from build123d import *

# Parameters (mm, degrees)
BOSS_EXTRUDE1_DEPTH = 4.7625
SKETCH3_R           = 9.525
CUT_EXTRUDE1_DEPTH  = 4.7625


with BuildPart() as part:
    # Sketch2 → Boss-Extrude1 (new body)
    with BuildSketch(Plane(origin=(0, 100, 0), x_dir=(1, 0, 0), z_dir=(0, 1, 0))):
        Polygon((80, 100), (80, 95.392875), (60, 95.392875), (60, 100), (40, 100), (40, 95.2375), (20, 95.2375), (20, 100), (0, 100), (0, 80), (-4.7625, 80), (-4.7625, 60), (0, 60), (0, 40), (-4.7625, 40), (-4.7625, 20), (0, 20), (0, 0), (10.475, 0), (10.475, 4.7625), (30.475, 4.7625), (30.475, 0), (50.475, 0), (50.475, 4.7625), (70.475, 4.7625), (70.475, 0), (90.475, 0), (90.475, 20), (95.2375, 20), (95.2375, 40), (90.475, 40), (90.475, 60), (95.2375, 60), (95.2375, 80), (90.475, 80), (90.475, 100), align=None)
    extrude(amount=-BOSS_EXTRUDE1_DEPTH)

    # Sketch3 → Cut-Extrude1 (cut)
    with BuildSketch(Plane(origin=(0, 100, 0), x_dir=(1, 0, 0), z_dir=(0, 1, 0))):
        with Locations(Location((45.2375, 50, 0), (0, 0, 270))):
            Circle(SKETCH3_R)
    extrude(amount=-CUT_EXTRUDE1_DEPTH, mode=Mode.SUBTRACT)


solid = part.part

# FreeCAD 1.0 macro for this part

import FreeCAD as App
import Part
import Sketcher
from FreeCAD import Vector
Q = App.Units.Quantity

doc = App.newDocument("Part")
body = doc.addObject("PartDesign::Body", "Body")

# Sketch on XZ plane
sketch1 = body.newObject("Sketcher::SketchObject", "Sketch")
sketch1.AttachmentSupport = (doc.getObject("XZ_Plane"), [""])
sketch1.MapMode = "FlatFace"
sketch1.AttachmentOffset = App.Placement(Vector(0, 0, -100), App.Rotation())
sketch1.addGeometry(Part.LineSegment(Vector(80, -100, 0), Vector(80, -95.4, 0)), False)
sketch1.addGeometry(Part.LineSegment(Vector(80, -95.4, 0), Vector(60, -95.4, 0)), False)
sketch1.addGeometry(Part.LineSegment(Vector(60, -95.4, 0), Vector(60, -100, 0)), False)
sketch1.addGeometry(Part.LineSegment(Vector(60, -100, 0), Vector(40, -100, 0)), False)
sketch1.addGeometry(Part.LineSegment(Vector(40, -100, 0), Vector(40, -95.2, 0)), False)
sketch1.addGeometry(Part.LineSegment(Vector(40, -95.2, 0), Vector(20, -95.2, 0)), False)
sketch1.addGeometry(Part.LineSegment(Vector(20, -95.2, 0), Vector(20, -100, 0)), False)
sketch1.addGeometry(Part.LineSegment(Vector(20, -100, 0), Vector(0, -100, 0)), False)
sketch1.addGeometry(Part.LineSegment(Vector(0, -100, 0), Vector(0, -80, 0)), False)
sketch1.addGeometry(Part.LineSegment(Vector(0, -80, 0), Vector(-4.8, -80, 0)), False)
sketch1.addGeometry(Part.LineSegment(Vector(-4.8, -80, 0), Vector(-4.8, -60, 0)), False)
sketch1.addGeometry(Part.LineSegment(Vector(-4.8, -60, 0), Vector(0, -60, 0)), False)
sketch1.addGeometry(Part.LineSegment(Vector(0, -60, 0), Vector(0, -40, 0)), False)
sketch1.addGeometry(Part.LineSegment(Vector(0, -40, 0), Vector(-4.8, -40, 0)), False)
sketch1.addGeometry(Part.LineSegment(Vector(-4.8, -40, 0), Vector(-4.8, -20, 0)), False)
sketch1.addGeometry(Part.LineSegment(Vector(-4.8, -20, 0), Vector(0, -20, 0)), False)
sketch1.addGeometry(Part.LineSegment(Vector(0, -20, 0), Vector(0, 0, 0)), False)
sketch1.addGeometry(Part.LineSegment(Vector(0, 0, 0), Vector(10.5, 0, 0)), False)
sketch1.addGeometry(Part.LineSegment(Vector(10.5, 0, 0), Vector(10.5, -4.8, 0)), False)
sketch1.addGeometry(Part.LineSegment(Vector(10.5, -4.8, 0), Vector(30.5, -4.8, 0)), False)
sketch1.addGeometry(Part.LineSegment(Vector(30.5, -4.8, 0), Vector(30.5, 0, 0)), False)
sketch1.addGeometry(Part.LineSegment(Vector(30.5, 0, 0), Vector(50.5, 0, 0)), False)
sketch1.addGeometry(Part.LineSegment(Vector(50.5, 0, 0), Vector(50.5, -4.8, 0)), False)
sketch1.addGeometry(Part.LineSegment(Vector(50.5, -4.8, 0), Vector(70.5, -4.8, 0)), False)
sketch1.addGeometry(Part.LineSegment(Vector(70.5, -4.8, 0), Vector(70.5, 0, 0)), False)
sketch1.addGeometry(Part.LineSegment(Vector(70.5, 0, 0), Vector(90.5, 0, 0)), False)
sketch1.addGeometry(Part.LineSegment(Vector(90.5, 0, 0), Vector(90.5, -20, 0)), False)
sketch1.addGeometry(Part.LineSegment(Vector(90.5, -20, 0), Vector(95.2, -20, 0)), False)
sketch1.addGeometry(Part.LineSegment(Vector(95.2, -20, 0), Vector(95.2, -40, 0)), False)
sketch1.addGeometry(Part.LineSegment(Vector(95.2, -40, 0), Vector(90.5, -40, 0)), False)
sketch1.addGeometry(Part.LineSegment(Vector(90.5, -40, 0), Vector(90.5, -60, 0)), False)
sketch1.addGeometry(Part.LineSegment(Vector(90.5, -60, 0), Vector(95.2, -60, 0)), False)
sketch1.addGeometry(Part.LineSegment(Vector(95.2, -60, 0), Vector(95.2, -80, 0)), False)
sketch1.addGeometry(Part.LineSegment(Vector(95.2, -80, 0), Vector(90.5, -80, 0)), False)
sketch1.addGeometry(Part.LineSegment(Vector(90.5, -80, 0), Vector(90.5, -100, 0)), False)
sketch1.addGeometry(Part.LineSegment(Vector(90.5, -100, 0), Vector(80, -100, 0)), False)
sketch1.addConstraint(Sketcher.Constraint("Coincident", 0, 2, 1, 1))
sketch1.addConstraint(Sketcher.Constraint("Coincident", 1, 2, 2, 1))
sketch1.addConstraint(Sketcher.Constraint("Coincident", 2, 2, 3, 1))
sketch1.addConstraint(Sketcher.Constraint("Coincident", 3, 2, 4, 1))
sketch1.addConstraint(Sketcher.Constraint("Coincident", 4, 2, 5, 1))
sketch1.addConstraint(Sketcher.Constraint("Coincident", 5, 2, 6, 1))
sketch1.addConstraint(Sketcher.Constraint("Coincident", 6, 2, 7, 1))
sketch1.addConstraint(Sketcher.Constraint("Coincident", 7, 2, 8, 1))
sketch1.addConstraint(Sketcher.Constraint("Coincident", 8, 2, 9, 1))
sketch1.addConstraint(Sketcher.Constraint("Coincident", 9, 2, 10, 1))
sketch1.addConstraint(Sketcher.Constraint("Coincident", 10, 2, 11, 1))
sketch1.addConstraint(Sketcher.Constraint("Coincident", 11, 2, 12, 1))
sketch1.addConstraint(Sketcher.Constraint("Coincident", 12, 2, 13, 1))
sketch1.addConstraint(Sketcher.Constraint("Coincident", 13, 2, 14, 1))
sketch1.addConstraint(Sketcher.Constraint("Coincident", 14, 2, 15, 1))
sketch1.addConstraint(Sketcher.Constraint("Coincident", 15, 2, 16, 1))
sketch1.addConstraint(Sketcher.Constraint("Coincident", 16, 2, 17, 1))
sketch1.addConstraint(Sketcher.Constraint("Coincident", 17, 2, 18, 1))
sketch1.addConstraint(Sketcher.Constraint("Coincident", 18, 2, 19, 1))
sketch1.addConstraint(Sketcher.Constraint("Coincident", 19, 2, 20, 1))
sketch1.addConstraint(Sketcher.Constraint("Coincident", 20, 2, 21, 1))
sketch1.addConstraint(Sketcher.Constraint("Coincident", 21, 2, 22, 1))
sketch1.addConstraint(Sketcher.Constraint("Coincident", 22, 2, 23, 1))
sketch1.addConstraint(Sketcher.Constraint("Coincident", 23, 2, 24, 1))
sketch1.addConstraint(Sketcher.Constraint("Coincident", 24, 2, 25, 1))
sketch1.addConstraint(Sketcher.Constraint("Coincident", 25, 2, 26, 1))
sketch1.addConstraint(Sketcher.Constraint("Coincident", 26, 2, 27, 1))
sketch1.addConstraint(Sketcher.Constraint("Coincident", 27, 2, 28, 1))
sketch1.addConstraint(Sketcher.Constraint("Coincident", 28, 2, 29, 1))
sketch1.addConstraint(Sketcher.Constraint("Coincident", 29, 2, 30, 1))
sketch1.addConstraint(Sketcher.Constraint("Coincident", 30, 2, 31, 1))
sketch1.addConstraint(Sketcher.Constraint("Coincident", 31, 2, 32, 1))
sketch1.addConstraint(Sketcher.Constraint("Coincident", 32, 2, 33, 1))
sketch1.addConstraint(Sketcher.Constraint("Coincident", 33, 2, 34, 1))
sketch1.addConstraint(Sketcher.Constraint("Coincident", 34, 2, 35, 1))
sketch1.addConstraint(Sketcher.Constraint("Coincident", 35, 2, 0, 1))
sketch1.addConstraint(Sketcher.Constraint("Vertical", 0))
sketch1.addConstraint(Sketcher.Constraint("Horizontal", 1))
sketch1.addConstraint(Sketcher.Constraint("Vertical", 2))
sketch1.addConstraint(Sketcher.Constraint("Horizontal", 3))
sketch1.addConstraint(Sketcher.Constraint("Vertical", 4))
sketch1.addConstraint(Sketcher.Constraint("Horizontal", 5))
sketch1.addConstraint(Sketcher.Constraint("Vertical", 6))
sketch1.addConstraint(Sketcher.Constraint("Horizontal", 7))
sketch1.addConstraint(Sketcher.Constraint("Vertical", 8))
sketch1.addConstraint(Sketcher.Constraint("Horizontal", 9))
sketch1.addConstraint(Sketcher.Constraint("Vertical", 10))
sketch1.addConstraint(Sketcher.Constraint("Horizontal", 11))
sketch1.addConstraint(Sketcher.Constraint("Vertical", 12))
sketch1.addConstraint(Sketcher.Constraint("Horizontal", 13))
sketch1.addConstraint(Sketcher.Constraint("Vertical", 14))
sketch1.addConstraint(Sketcher.Constraint("Horizontal", 15))
sketch1.addConstraint(Sketcher.Constraint("Vertical", 16))
sketch1.addConstraint(Sketcher.Constraint("Horizontal", 17))
sketch1.addConstraint(Sketcher.Constraint("Vertical", 18))
sketch1.addConstraint(Sketcher.Constraint("Horizontal", 19))
sketch1.addConstraint(Sketcher.Constraint("Vertical", 20))
sketch1.addConstraint(Sketcher.Constraint("Horizontal", 21))
sketch1.addConstraint(Sketcher.Constraint("Vertical", 22))
sketch1.addConstraint(Sketcher.Constraint("Horizontal", 23))
sketch1.addConstraint(Sketcher.Constraint("Vertical", 24))
sketch1.addConstraint(Sketcher.Constraint("Horizontal", 25))
sketch1.addConstraint(Sketcher.Constraint("Vertical", 26))
sketch1.addConstraint(Sketcher.Constraint("Horizontal", 27))
sketch1.addConstraint(Sketcher.Constraint("Vertical", 28))
sketch1.addConstraint(Sketcher.Constraint("Horizontal", 29))
sketch1.addConstraint(Sketcher.Constraint("Vertical", 30))
sketch1.addConstraint(Sketcher.Constraint("Horizontal", 31))
sketch1.addConstraint(Sketcher.Constraint("Vertical", 32))
sketch1.addConstraint(Sketcher.Constraint("Horizontal", 33))
sketch1.addConstraint(Sketcher.Constraint("Vertical", 34))
sketch1.addConstraint(Sketcher.Constraint("Horizontal", 35))
sketch1.addConstraint(Sketcher.Constraint("Coincident", 16, 2, -1, 1))
sketch1.addConstraint(Sketcher.Constraint("PointOnObject", 7, 2, -2))
sketch1.addConstraint(Sketcher.Constraint("PointOnObject", 11, 2, -2))
sketch1.addConstraint(Sketcher.Constraint("PointOnObject", 20, 2, -1))
sketch1.addConstraint(Sketcher.Constraint("PointOnObject", 24, 2, -1))
sketch1.addConstraint(Sketcher.Constraint("Horizontal", 3, 2, 6, 2))
sketch1.addConstraint(Sketcher.Constraint("Horizontal", 19, 2, 22, 2))
sketch1.addConstraint(Sketcher.Constraint("Horizontal", 15, 2, 26, 2))
sketch1.addConstraint(Sketcher.Constraint("Horizontal", 13, 2, 28, 2))
sketch1.addConstraint(Sketcher.Constraint("Horizontal", 11, 2, 30, 2))
sketch1.addConstraint(Sketcher.Constraint("Horizontal", 9, 2, 32, 2))
sketch1.addConstraint(Sketcher.Constraint("Horizontal", 7, 2, 34, 2))
sketch1.addConstraint(Sketcher.Constraint("Vertical", 10, 2, 13, 2))
sketch1.addConstraint(Sketcher.Constraint("Vertical", 26, 2, 29, 2))
sketch1.addConstraint(Sketcher.Constraint("Vertical", 28, 2, 31, 2))
sketch1.addConstraint(Sketcher.Constraint("Vertical", 30, 2, 33, 2))
sketch1.addConstraint(Sketcher.Constraint("Equal", 1, 3))
sketch1.addConstraint(Sketcher.Constraint("Equal", 3, 5))
sketch1.addConstraint(Sketcher.Constraint("Equal", 5, 7))
sketch1.addConstraint(Sketcher.Constraint("Equal", 7, 19))
sketch1.addConstraint(Sketcher.Constraint("Equal", 19, 21))
sketch1.addConstraint(Sketcher.Constraint("Equal", 21, 23))
sketch1.addConstraint(Sketcher.Constraint("Equal", 23, 25))
sketch1.addConstraint(Sketcher.Constraint("Equal", 15, 27))
sketch1.addConstraint(Sketcher.Constraint("Equal", 33, 4))
sketch1.addConstraint(Sketcher.Constraint("Equal", 25, 8))
sketch1.addConstraint(Sketcher.Constraint("Equal", 8, 10))
sketch1.addConstraint(Sketcher.Constraint("Equal", 10, 12))
sketch1.addConstraint(Sketcher.Constraint("Equal", 12, 14))
sketch1.addConstraint(Sketcher.Constraint("Equal", 14, 16))
sketch1.addConstraint(Sketcher.Constraint("Equal", 6, 18))
sketch1.addConstraint(Sketcher.Constraint("DistanceX", 9, 2, 9, 1, Q("0.1875 in")))
sketch1.addConstraint(Sketcher.Constraint("DistanceX", 1, 2, 1, 1, Q("20 mm")))
sketch1.addConstraint(Sketcher.Constraint("DistanceX", 17, 1, 17, 2, Q("10.475 mm")))
sketch1.addConstraint(Sketcher.Constraint("DistanceY", 0, 1, 0, 2, Q("4.607125 mm")))
pad1 = body.newObject("PartDesign::Pad", "Pad")
pad1.Profile = sketch1
pad1.Length = Q("0.1875 in")

# Sketch on XZ plane
sketch2 = body.newObject("Sketcher::SketchObject", "Sketch001")
sketch2.AttachmentSupport = (doc.getObject("XZ_Plane"), [""])
sketch2.MapMode = "FlatFace"
sketch2.AttachmentOffset = App.Placement(Vector(0, 0, -100), App.Rotation())
sketch2.addGeometry(Part.Circle(Vector(45, -50, 0), Vector(0, 0, 1), 10), False)
sketch2.addConstraint(Sketcher.Constraint("Diameter", 0, Q("0.75 in")))
sketch2.addConstraint(Sketcher.Constraint("DistanceX", -1, 1, 0, 3, Q("45.2375 mm")))
sketch2.addConstraint(Sketcher.Constraint("DistanceY", 0, 3, -1, 1, Q("50 mm")))
pocket1 = body.newObject("PartDesign::Pocket", "Pocket")
pocket1.Profile = sketch2
pocket1.Length = Q("0.1875 in")
pocket1.Reversed = True

doc.recompute()
